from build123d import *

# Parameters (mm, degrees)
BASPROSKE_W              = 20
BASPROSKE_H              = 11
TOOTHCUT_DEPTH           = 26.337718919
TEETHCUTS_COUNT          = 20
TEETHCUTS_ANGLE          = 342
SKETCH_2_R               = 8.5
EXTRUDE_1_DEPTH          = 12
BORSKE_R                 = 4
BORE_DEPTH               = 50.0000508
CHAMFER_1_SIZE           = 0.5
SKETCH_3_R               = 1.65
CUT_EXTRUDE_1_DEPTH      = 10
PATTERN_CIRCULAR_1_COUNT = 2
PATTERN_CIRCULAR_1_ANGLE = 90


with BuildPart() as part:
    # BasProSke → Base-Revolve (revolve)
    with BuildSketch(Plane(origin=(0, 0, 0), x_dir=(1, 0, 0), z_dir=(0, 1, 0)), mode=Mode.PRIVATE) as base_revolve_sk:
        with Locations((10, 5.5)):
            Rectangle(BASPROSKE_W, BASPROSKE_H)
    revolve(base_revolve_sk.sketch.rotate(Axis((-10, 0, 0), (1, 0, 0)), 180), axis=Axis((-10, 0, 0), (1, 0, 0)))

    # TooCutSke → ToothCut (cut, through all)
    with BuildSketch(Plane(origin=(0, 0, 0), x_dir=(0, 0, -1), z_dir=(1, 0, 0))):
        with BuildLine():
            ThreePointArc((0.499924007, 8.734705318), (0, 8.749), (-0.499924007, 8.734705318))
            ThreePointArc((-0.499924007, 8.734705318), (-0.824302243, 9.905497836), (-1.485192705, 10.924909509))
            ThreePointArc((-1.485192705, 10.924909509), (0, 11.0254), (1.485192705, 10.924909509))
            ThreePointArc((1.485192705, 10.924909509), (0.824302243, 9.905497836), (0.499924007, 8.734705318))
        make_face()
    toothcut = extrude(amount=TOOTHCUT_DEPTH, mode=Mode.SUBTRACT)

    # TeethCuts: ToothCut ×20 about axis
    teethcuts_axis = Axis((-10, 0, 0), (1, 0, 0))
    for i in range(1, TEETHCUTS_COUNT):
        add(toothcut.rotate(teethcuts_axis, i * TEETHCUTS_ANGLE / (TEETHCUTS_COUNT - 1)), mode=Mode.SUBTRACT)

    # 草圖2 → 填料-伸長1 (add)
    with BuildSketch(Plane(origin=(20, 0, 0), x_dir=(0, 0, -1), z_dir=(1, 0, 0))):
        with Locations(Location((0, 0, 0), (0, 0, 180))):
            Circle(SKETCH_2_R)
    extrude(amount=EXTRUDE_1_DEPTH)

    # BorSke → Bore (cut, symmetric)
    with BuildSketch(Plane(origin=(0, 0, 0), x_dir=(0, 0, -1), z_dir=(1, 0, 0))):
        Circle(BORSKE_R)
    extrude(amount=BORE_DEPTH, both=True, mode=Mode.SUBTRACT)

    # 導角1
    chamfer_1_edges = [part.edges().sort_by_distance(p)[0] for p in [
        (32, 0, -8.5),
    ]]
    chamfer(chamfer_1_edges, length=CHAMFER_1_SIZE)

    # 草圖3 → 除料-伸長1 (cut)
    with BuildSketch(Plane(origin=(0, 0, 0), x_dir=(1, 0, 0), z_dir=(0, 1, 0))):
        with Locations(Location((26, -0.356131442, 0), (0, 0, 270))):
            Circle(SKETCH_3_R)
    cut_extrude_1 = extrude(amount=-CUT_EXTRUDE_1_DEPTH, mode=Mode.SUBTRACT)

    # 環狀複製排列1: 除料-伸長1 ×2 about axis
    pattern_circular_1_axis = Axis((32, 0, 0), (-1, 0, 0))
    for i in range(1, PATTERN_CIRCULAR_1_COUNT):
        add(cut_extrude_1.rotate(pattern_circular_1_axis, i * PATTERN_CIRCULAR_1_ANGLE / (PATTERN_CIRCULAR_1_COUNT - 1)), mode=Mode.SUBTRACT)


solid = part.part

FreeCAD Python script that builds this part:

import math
import FreeCAD as App
import Part
import Sketcher

V = App.Vector


def edges_at(feature, points):
    """Names of the edges that pass closest to the given points."""
    edges = feature.Shape.Edges
    near = lambda p: min(range(len(edges)), key=lambda i: edges[i].distToShape(Part.Vertex(*p))[0])
    return sorted({f"Edge{near(p) + 1}" for p in points})


def add_polygon(sketch, points):
    """Adds a closed chain of lines whose ends are joined by coincident constraints."""
    first, n = sketch.GeometryCount, len(points)
    for a, b in zip(points, points[1:] + points[:1]):
        sketch.addGeometry(Part.LineSegment(App.Vector(*a, 0), App.Vector(*b, 0)), False)
    for i in range(n):
        sketch.addConstraint(Sketcher.Constraint("Coincident", first + i, 2, first + (i + 1) % n, 1))

doc = App.newDocument("Part")
body = doc.addObject("PartDesign::Body", "Body")

sketch1 = body.newObject("Sketcher::SketchObject", "Sketch")
sketch1.AttachmentSupport = (doc.getObject("XZ_Plane"), [""])
sketch1.MapMode = "FlatFace"
add_polygon(sketch1, [(0, -11), (0, 0), (20, 0), (20, -11)])
sketch1.addConstraint([
    Sketcher.Constraint("Vertical", 0),
    Sketcher.Constraint("Horizontal", 1),
    Sketcher.Constraint("Vertical", 2),
    Sketcher.Constraint("Horizontal", 3),
    Sketcher.Constraint("Coincident", 0, 2, -1, 1),
    Sketcher.Constraint("DistanceX", 1, 1, 1, 2, 20.0),
    Sketcher.Constraint("DistanceY", 0, 1, 0, 2, 11.0),
])
revolution = body.newObject("PartDesign::Revolution", "Revolution")
revolution.Profile = sketch1
revolution.ReferenceAxis = (sketch1, ["H_Axis"])
revolution.Angle = 360

sketch2 = body.newObject("Sketcher::SketchObject", "Sketch001")
sketch2.AttachmentSupport = (doc.getObject("YZ_Plane"), [""])
sketch2.MapMode = "FlatFace"
sketch2.addGeometry([
    Part.ArcOfCircle(Part.Circle(V(0, 0, 0), V(0, 0, 1), 8.7), math.radians(-3.28), math.radians(3.28)),
    Part.ArcOfCircle(Part.Circle(V(8.3, -4.5, 0), V(0, 0, 1), 4), math.radians(48), math.radians(83)),
    Part.ArcOfCircle(Part.Circle(V(0, 0, 0), V(0, 0, 1), 11), math.radians(-7.74), math.radians(7.74)),
    Part.ArcOfCircle(Part.Circle(V(8.3, 4.5, 0), V(0, 0, 1), 4), math.radians(-83), math.radians(-48)),
], False)
sketch2.addConstraint([
    Sketcher.Constraint("Coincident", 0, 1, 1, 2),
    Sketcher.Constraint("Coincident", 1, 1, 2, 1),
    Sketcher.Constraint("Coincident", 2, 2, 3, 2),
    Sketcher.Constraint("Coincident", 3, 1, 0, 2),
    Sketcher.Constraint("Coincident", 0, 3, -1, 1),
    Sketcher.Constraint("Coincident", 2, 3, -1, 1),
    Sketcher.Constraint("Equal", 1, 3),
    Sketcher.Constraint("Symmetric", 1, 3, 3, 3, -1),
    Sketcher.Constraint("Radius", 1, 4.0),
    Sketcher.Constraint("Radius", 0, 8.749),
    Sketcher.Constraint("Radius", 2, 11.0254),
    Sketcher.Constraint("DistanceY", 1, 3, -1, 1, 4.47219),
    Sketcher.Constraint("DistanceX", -1, 1, 1, 1, 10.92491),
])
pocket1 = body.newObject("PartDesign::Pocket", "Pocket")
pocket1.Profile = sketch2
pocket1.Type = "ThroughAll"
pocket1.Reversed = True
doc.recompute()

polarpattern = body.newObject("PartDesign::PolarPattern", "PolarPattern")
polarpattern.Originals = [pocket1]
polarpattern.Axis = (doc.getObject("X_Axis"), [""])
polarpattern.Angle = 360
polarpattern.Occurrences = 20
body.Tip = polarpattern

sketch3 = body.newObject("Sketcher::SketchObject", "Sketch002")
sketch3.AttachmentSupport = (doc.getObject("YZ_Plane"), [""])
sketch3.MapMode = "FlatFace"
sketch3.AttachmentOffset = App.Placement(V(0, 0, 20), App.Rotation())
sketch3.addGeometry(Part.Circle(V(0, 0, 0), V(0, 0, 1), 8), False)
sketch3.addConstraint([
    Sketcher.Constraint("Coincident", 0, 3, -1, 1),
    Sketcher.Constraint("Diameter", 0, 17.0),
])
pad1 = body.newObject("PartDesign::Pad", "Pad")
pad1.Profile = sketch3
pad1.Length = 12

sketch4 = body.newObject("Sketcher::SketchObject", "Sketch003")
sketch4.AttachmentSupport = (doc.getObject("YZ_Plane"), [""])
sketch4.MapMode = "FlatFace"
sketch4.addGeometry(Part.Circle(V(0, 0, 0), V(0, 0, 1), 4), False)
sketch4.addConstraint([
    Sketcher.Constraint("Coincident", 0, 3, -1, 1),
    Sketcher.Constraint("Diameter", 0, 8.0),
])
pocket2 = body.newObject("PartDesign::Pocket", "Pocket001")
pocket2.Profile = sketch4
pocket2.Length = 100.000102
pocket2.Midplane = True
doc.recompute()

chamfer = body.newObject("PartDesign::Chamfer", "Chamfer")
chamfer.Base = (pocket2, edges_at(pocket2, [(32, 0, -8.5)]))
chamfer.Size = 0.5

sketch5 = body.newObject("Sketcher::SketchObject", "Sketch004")
sketch5.AttachmentSupport = (doc.getObject("XZ_Plane"), [""])
sketch5.MapMode = "FlatFace"
sketch5.addGeometry(Part.Circle(V(26, 0.4, 0), V(0, 0, 1), 1.6), False)
sketch5.addConstraint([
    Sketcher.Constraint("Diameter", 0, 3.3),
    Sketcher.Constraint("DistanceX", -1, 1, 0, 3, 26.0),
    Sketcher.Constraint("DistanceY", -1, 1, 0, 3, 0.356131),
])
pocket3 = body.newObject("PartDesign::Pocket", "Pocket002")
pocket3.Profile = sketch5
pocket3.Length = 10
pocket3.Reversed = True
doc.recompute()

polarpattern2 = body.newObject("PartDesign::PolarPattern", "PolarPattern001")
polarpattern2.Originals = [pocket3]
polarpattern2.Axis = (doc.getObject("X_Axis"), [""])
polarpattern2.Angle = 90
polarpattern2.Occurrences = 2
polarpattern2.Reversed = True
body.Tip = polarpattern2

doc.recompute()
